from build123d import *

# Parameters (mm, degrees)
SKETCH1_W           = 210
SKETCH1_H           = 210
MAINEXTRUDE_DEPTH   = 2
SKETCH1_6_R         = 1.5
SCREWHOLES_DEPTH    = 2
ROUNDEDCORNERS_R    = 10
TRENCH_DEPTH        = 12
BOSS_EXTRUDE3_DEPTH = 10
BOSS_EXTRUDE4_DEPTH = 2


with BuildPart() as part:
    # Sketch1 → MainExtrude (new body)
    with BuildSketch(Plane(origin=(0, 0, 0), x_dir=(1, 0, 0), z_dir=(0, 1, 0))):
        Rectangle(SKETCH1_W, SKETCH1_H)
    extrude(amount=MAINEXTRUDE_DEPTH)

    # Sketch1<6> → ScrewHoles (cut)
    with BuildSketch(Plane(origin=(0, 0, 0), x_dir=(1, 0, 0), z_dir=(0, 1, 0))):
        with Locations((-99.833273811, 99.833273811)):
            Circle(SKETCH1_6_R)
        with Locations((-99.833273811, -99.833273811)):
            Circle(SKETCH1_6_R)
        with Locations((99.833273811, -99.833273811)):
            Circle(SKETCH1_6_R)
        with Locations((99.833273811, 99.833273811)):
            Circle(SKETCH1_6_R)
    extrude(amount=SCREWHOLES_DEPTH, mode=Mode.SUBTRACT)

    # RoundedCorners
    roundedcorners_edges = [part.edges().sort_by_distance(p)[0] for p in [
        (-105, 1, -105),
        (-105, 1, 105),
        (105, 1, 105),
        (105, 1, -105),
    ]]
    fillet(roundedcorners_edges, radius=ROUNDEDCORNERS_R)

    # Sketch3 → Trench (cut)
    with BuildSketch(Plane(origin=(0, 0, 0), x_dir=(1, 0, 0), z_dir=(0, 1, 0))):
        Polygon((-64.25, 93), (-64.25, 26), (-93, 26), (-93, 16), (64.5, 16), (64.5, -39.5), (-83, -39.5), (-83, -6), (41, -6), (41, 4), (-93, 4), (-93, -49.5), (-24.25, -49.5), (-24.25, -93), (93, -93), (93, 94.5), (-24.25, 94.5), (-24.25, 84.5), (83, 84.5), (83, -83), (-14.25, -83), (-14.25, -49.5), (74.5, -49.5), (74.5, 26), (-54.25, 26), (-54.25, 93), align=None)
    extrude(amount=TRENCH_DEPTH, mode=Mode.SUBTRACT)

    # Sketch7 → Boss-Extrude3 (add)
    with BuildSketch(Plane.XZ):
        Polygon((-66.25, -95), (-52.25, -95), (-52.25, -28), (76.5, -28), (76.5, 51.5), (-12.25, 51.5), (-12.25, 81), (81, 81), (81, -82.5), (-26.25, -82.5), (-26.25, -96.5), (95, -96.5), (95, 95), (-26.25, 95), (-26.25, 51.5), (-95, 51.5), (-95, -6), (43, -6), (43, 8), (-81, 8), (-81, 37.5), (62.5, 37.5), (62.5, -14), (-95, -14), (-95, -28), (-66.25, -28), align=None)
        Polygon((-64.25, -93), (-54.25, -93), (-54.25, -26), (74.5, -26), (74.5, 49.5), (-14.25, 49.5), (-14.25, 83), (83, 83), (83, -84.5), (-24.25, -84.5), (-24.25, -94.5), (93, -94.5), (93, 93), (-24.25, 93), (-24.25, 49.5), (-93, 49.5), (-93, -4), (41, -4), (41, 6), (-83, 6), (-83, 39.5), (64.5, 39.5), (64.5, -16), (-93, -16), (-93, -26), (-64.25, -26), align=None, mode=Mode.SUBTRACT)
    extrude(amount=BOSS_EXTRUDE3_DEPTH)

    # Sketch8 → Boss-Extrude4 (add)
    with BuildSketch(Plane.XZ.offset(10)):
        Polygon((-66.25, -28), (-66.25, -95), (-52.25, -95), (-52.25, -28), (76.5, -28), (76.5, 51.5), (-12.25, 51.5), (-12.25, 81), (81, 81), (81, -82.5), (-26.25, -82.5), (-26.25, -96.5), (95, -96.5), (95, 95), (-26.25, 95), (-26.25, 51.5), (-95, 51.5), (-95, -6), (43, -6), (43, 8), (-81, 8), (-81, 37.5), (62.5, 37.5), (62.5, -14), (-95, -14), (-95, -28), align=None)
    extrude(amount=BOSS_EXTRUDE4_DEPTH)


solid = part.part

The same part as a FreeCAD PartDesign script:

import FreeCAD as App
import Part
import Sketcher


def edges_at(feature, points):
    """Names of the edges that pass closest to the given points."""
    edges = feature.Shape.Edges
    near = lambda p: min(range(len(edges)), key=lambda i: edges[i].distToShape(Part.Vertex(*p))[0])
    return sorted({f"Edge{near(p) + 1}" for p in points})

doc = App.newDocument("Part")
params = doc.addObject("Spreadsheet::Sheet", "Params")
for row, (alias, value) in enumerate([
    ("sketch1_width", "210 mm"),
    ("pad1_length", "2 mm"),
    ("sketch2_diameter", "3 mm"),
    ("pocket1_length", "2 mm"),
    ("fillet_radius", "10 mm"),
    ("sketch3_width", "124 mm"),
    ("sketch3_width2", "134 mm"),
    ("sketch3_width3", "10 mm"),
    ("sketch3_height", "67 mm"),
    ("sketch3_width4", "157.5 mm"),
    ("pocket2_length", "12 mm"),
    ("sketch4_width", "14 mm"),
    ("sketch4_width2", "138 mm"),
    ("sketch4_width3", "124 mm"),
    ("sketch4_width4", "10 mm"),
    ("sketch4_width5", "134 mm"),
    ("pad2_length", "10 mm"),
    ("sketch5_width", "14 mm"),
    ("sketch5_width2", "138 mm"),
    ("sketch5_width3", "124 mm"),
    ("sketch5_height", "67 mm"),
    ("sketch5_width4", "143.5 mm"),
    ("pad3_length", "2 mm"),
], start=1):
    params.set(f"A{row}", alias)
    params.set(f"B{row}", "=" + value)
    params.setAlias(f"B{row}", alias)

body = doc.addObject("PartDesign::Body", "Body")

sketch1 = body.newObject("Sketcher::SketchObject", "Sketch")
sketch1.AttachmentSupport = (doc.getObject("XZ_Plane"), [""])
sketch1.MapMode = "FlatFace"
sketch1.addGeometry([
    Part.LineSegment(App.Vector(-105, -105, 0), App.Vector(-105, 105, 0)),
    Part.LineSegment(App.Vector(-105, 105, 0), App.Vector(105, 105, 0)),
    Part.LineSegment(App.Vector(105, 105, 0), App.Vector(105, -105, 0)),
    Part.LineSegment(App.Vector(105, -105, 0), App.Vector(-105, -105, 0)),
], False)
sketch1.addConstraint([
    Sketcher.Constraint("Coincident", 0, 2, 1, 1),
    Sketcher.Constraint("Coincident", 1, 2, 2, 1),
    Sketcher.Constraint("Coincident", 2, 2, 3, 1),
    Sketcher.Constraint("Coincident", 3, 2, 0, 1),
    Sketcher.Constraint("Vertical", 0),
    Sketcher.Constraint("Horizontal", 1),
    Sketcher.Constraint("Vertical", 2),
    Sketcher.Constraint("Horizontal", 3),
    Sketcher.Constraint("Symmetric", 0, 2, 2, 2, -1, 1),
    Sketcher.Constraint("Equal", 3, 0),
    Sketcher.Constraint("DistanceX", 1, 1, 1, 2, 210.0),
])
sketch1.setExpression("Constraints[10]", "Params.sketch1_width")
pad1 = body.newObject("PartDesign::Pad", "Pad")
pad1.Profile = sketch1
pad1.setExpression("Length", "Params.pad1_length")
pad1.Reversed = True

sketch2 = body.newObject("Sketcher::SketchObject", "Sketch001")
sketch2.AttachmentSupport = (doc.getObject("XZ_Plane"), [""])
sketch2.MapMode = "FlatFace"
sketch2.addGeometry([
    Part.Circle(App.Vector(-99.833274, -99.833274, 0), App.Vector(0, 0, 1), 1.5),
    Part.Circle(App.Vector(-99.833274, 99.833274, 0), App.Vector(0, 0, 1), 1.5),
    Part.Circle(App.Vector(99.833274, 99.833274, 0), App.Vector(0, 0, 1), 1.5),
    Part.Circle(App.Vector(99.833274, -99.833274, 0), App.Vector(0, 0, 1), 1.5),
], False)
sketch2.addConstraint([
    Sketcher.Constraint("Equal", 0, 1),
    Sketcher.Constraint("Equal", 1, 2),
    Sketcher.Constraint("Equal", 2, 3),
    Sketcher.Constraint("Symmetric", 0, 3, 2, 3, -1, 1),
    Sketcher.Constraint("Symmetric", 1, 3, 3, 3, -1, 1),
    Sketcher.Constraint("Symmetric", 1, 3, 2, 3, -2),
    Sketcher.Constraint("Diameter", 0, 3.0),
    Sketcher.Constraint("DistanceX", 0, 3, -1, 1, 99.833274),
    Sketcher.Constraint("DistanceY", 0, 3, -1, 1, 99.833274),
])
sketch2.setExpression("Constraints[6]", "Params.sketch2_diameter")
pocket1 = body.newObject("PartDesign::Pocket", "Pocket")
pocket1.Profile = sketch2
pocket1.setExpression("Length", "Params.pocket1_length")
doc.recompute()

fillet = body.newObject("PartDesign::Fillet", "Fillet")
fillet.Base = (pocket1, edges_at(pocket1, [
    (-105, 1, -105),
    (-105, 1, 105),
    (105, 1, 105),
    (105, 1, -105),
]))
fillet.setExpression("Radius", "Params.fillet_radius")

sketch3 = body.newObject("Sketcher::SketchObject", "Sketch002")
sketch3.AttachmentSupport = (doc.getObject("XZ_Plane"), [""])
sketch3.MapMode = "FlatFace"
sketch3.addGeometry([
    Part.LineSegment(App.Vector(-64.25, -93, 0), App.Vector(-64.25, -26, 0)),
    Part.LineSegment(App.Vector(-64.25, -26, 0), App.Vector(-93, -26, 0)),
    Part.LineSegment(App.Vector(-93, -26, 0), App.Vector(-93, -16, 0)),
    Part.LineSegment(App.Vector(-93, -16, 0), App.Vector(64.5, -16, 0)),
    Part.LineSegment(App.Vector(64.5, -16, 0), App.Vector(64.5, 39.5, 0)),
    Part.LineSegment(App.Vector(64.5, 39.5, 0), App.Vector(-83, 39.5, 0)),
    Part.LineSegment(App.Vector(-83, 39.5, 0), App.Vector(-83, 6, 0)),
    Part.LineSegment(App.Vector(-83, 6, 0), App.Vector(41, 6, 0)),
    Part.LineSegment(App.Vector(41, 6, 0), App.Vector(41, -4, 0)),
    Part.LineSegment(App.Vector(41, -4, 0), App.Vector(-93, -4, 0)),
    Part.LineSegment(App.Vector(-93, -4, 0), App.Vector(-93, 49.5, 0)),
    Part.LineSegment(App.Vector(-93, 49.5, 0), App.Vector(-24.25, 49.5, 0)),
    Part.LineSegment(App.Vector(-24.25, 49.5, 0), App.Vector(-24.25, 93, 0)),
    Part.LineSegment(App.Vector(-24.25, 93, 0), App.Vector(93, 93, 0)),
    Part.LineSegment(App.Vector(93, 93, 0), App.Vector(93, -94.5, 0)),
    Part.LineSegment(App.Vector(93, -94.5, 0), App.Vector(-24.25, -94.5, 0)),
    Part.LineSegment(App.Vector(-24.25, -94.5, 0), App.Vector(-24.25, -84.5, 0)),
    Part.LineSegment(App.Vector(-24.25, -84.5, 0), App.Vector(83, -84.5, 0)),
    Part.LineSegment(App.Vector(83, -84.5, 0), App.Vector(83, 83, 0)),
    Part.LineSegment(App.Vector(83, 83, 0), App.Vector(-14.25, 83, 0)),
    Part.LineSegment(App.Vector(-14.25, 83, 0), App.Vector(-14.25, 49.5, 0)),
    Part.LineSegment(App.Vector(-14.25, 49.5, 0), App.Vector(74.5, 49.5, 0)),
    Part.LineSegment(App.Vector(74.5, 49.5, 0), App.Vector(74.5, -26, 0)),
    Part.LineSegment(App.Vector(74.5, -26, 0), App.Vector(-54.25, -26, 0)),
    Part.LineSegment(App.Vector(-54.25, -26, 0), App.Vector(-54.25, -93, 0)),
    Part.LineSegment(App.Vector(-54.25, -93, 0), App.Vector(-64.25, -93, 0)),
], False)
sketch3.addConstraint([
    Sketcher.Constraint("Coincident", 0, 2, 1, 1),
    Sketcher.Constraint("Coincident", 1, 2, 2, 1),
    Sketcher.Constraint("Coincident", 2, 2, 3, 1),
    Sketcher.Constraint("Coincident", 3, 2, 4, 1),
    Sketcher.Constraint("Coincident", 4, 2, 5, 1),
    Sketcher.Constraint("Coincident", 5, 2, 6, 1),
    Sketcher.Constraint("Coincident", 6, 2, 7, 1),
    Sketcher.Constraint("Coincident", 7, 2, 8, 1),
    Sketcher.Constraint("Coincident", 8, 2, 9, 1),
    Sketcher.Constraint("Coincident", 9, 2, 10, 1),
    Sketcher.Constraint("Coincident", 10, 2, 11, 1),
    Sketcher.Constraint("Coincident", 11, 2, 12, 1),
    Sketcher.Constraint("Coincident", 12, 2, 13, 1),
    Sketcher.Constraint("Coincident", 13, 2, 14, 1),
    Sketcher.Constraint("Coincident", 14, 2, 15, 1),
    Sketcher.Constraint("Coincident", 15, 2, 16, 1),
    Sketcher.Constraint("Coincident", 16, 2, 17, 1),
    Sketcher.Constraint("Coincident", 17, 2, 18, 1),
    Sketcher.Constraint("Coincident", 18, 2, 19, 1),
    Sketcher.Constraint("Coincident", 19, 2, 20, 1),
    Sketcher.Constraint("Coincident", 20, 2, 21, 1),
    Sketcher.Constraint("Coincident", 21, 2, 22, 1),
    Sketcher.Constraint("Coincident", 22, 2, 23, 1),
    Sketcher.Constraint("Coincident", 23, 2, 24, 1),
    Sketcher.Constraint("Coincident", 24, 2, 25, 1),
    Sketcher.Constraint("Coincident", 25, 2, 0, 1),
    Sketcher.Constraint("Vertical", 0),
    Sketcher.Constraint("Horizontal", 1),
    Sketcher.Constraint("Vertical", 2),
    Sketcher.Constraint("Horizontal", 3),
    Sketcher.Constraint("Vertical", 4),
    Sketcher.Constraint("Horizontal", 5),
    Sketcher.Constraint("Vertical", 6),
    Sketcher.Constraint("Horizontal", 7),
    Sketcher.Constraint("Vertical", 8),
    Sketcher.Constraint("Horizontal", 9),
    Sketcher.Constraint("Vertical", 10),
    Sketcher.Constraint("Horizontal", 11),
    Sketcher.Constraint("Vertical", 12),
    Sketcher.Constraint("Horizontal", 13),
    Sketcher.Constraint("Vertical", 14),
    Sketcher.Constraint("Horizontal", 15),
    Sketcher.Constraint("Vertical", 16),
    Sketcher.Constraint("Horizontal", 17),
    Sketcher.Constraint("Vertical", 18),
    Sketcher.Constraint("Horizontal", 19),
    Sketcher.Constraint("Vertical", 20),
    Sketcher.Constraint("Horizontal", 21),
    Sketcher.Constraint("Vertical", 22),
    Sketcher.Constraint("Horizontal", 23),
    Sketcher.Constraint("Vertical", 24),
    Sketcher.Constraint("Horizontal", 25),
    Sketcher.Constraint("Horizontal", 11, 2, 20, 2),
    Sketcher.Constraint("Horizontal", 1, 2, 22, 2),
    Sketcher.Constraint("Vertical", 2, 2, 9, 2),
    Sketcher.Constraint("Vertical", 12, 2, 15, 2),
    Sketcher.Constraint("Equal", 25, 2),
    Sketcher.Constraint("Equal", 2, 8),
    Sketcher.Constraint("Equal", 8, 16),
    Sketcher.Constraint("Equal", 6, 20),
    Sketcher.Constraint("DistanceX", 7, 1, 7, 2, 124.0),
    Sketcher.Constraint("DistanceX", 9, 2, 9, 1, 134.0),
    Sketcher.Constraint("DistanceX", 25, 2, 25, 1, 10.0),
    Sketcher.Constraint("DistanceY", 0, 1, 0, 2, 67.0),
    Sketcher.Constraint("DistanceX", 3, 1, 3, 2, 157.5),
    Sketcher.Constraint("DistanceY", 4, 1, 4, 2, 55.5),
    Sketcher.Constraint("DistanceY", 6, 2, 6, 1, 33.5),
    Sketcher.Constraint("DistanceY", 10, 1, 10, 2, 53.5),
    Sketcher.Constraint("DistanceY", 12, 1, 12, 2, 43.5),
    Sketcher.Constraint("DistanceY", 14, 2, 14, 1, 187.5),
    Sketcher.Constraint("DistanceY", 0, 2, -1, 1, 26.0),
    Sketcher.Constraint("DistanceX", 1, 2, -1, 1, 93.0),
    Sketcher.Constraint("DistanceX", -1, 1, 13, 2, 93.0),
    Sketcher.Constraint("DistanceX", -1, 1, 17, 2, 83.0),
    Sketcher.Constraint("DistanceX", 0, 2, 15, 2, 40.0),
    Sketcher.Constraint("DistanceX", 12, 2, 19, 2, 10.0),
    Sketcher.Constraint("DistanceX", 4, 2, 21, 2, 10.0),
    Sketcher.Constraint("DistanceX", 1, 2, 1, 1, 28.75),
])
sketch3.setExpression("Constraints[60]", "Params.sketch3_width")
sketch3.setExpression("Constraints[61]", "Params.sketch3_width2")
sketch3.setExpression("Constraints[62]", "Params.sketch3_width3")
sketch3.setExpression("Constraints[63]", "Params.sketch3_height")
sketch3.setExpression("Constraints[64]", "Params.sketch3_width4")
pocket2 = body.newObject("PartDesign::Pocket", "Pocket001")
pocket2.Profile = sketch3
pocket2.setExpression("Length", "Params.pocket2_length")

sketch4 = body.newObject("Sketcher::SketchObject", "Sketch003")
sketch4.AttachmentSupport = (doc.getObject("XZ_Plane"), [""])
sketch4.MapMode = "FlatFace"
sketch4.addGeometry([
    Part.LineSegment(App.Vector(-66.25, -95, 0), App.Vector(-52.25, -95, 0)),
    Part.LineSegment(App.Vector(-52.25, -95, 0), App.Vector(-52.25, -28, 0)),
    Part.LineSegment(App.Vector(-52.25, -28, 0), App.Vector(76.5, -28, 0)),
    Part.LineSegment(App.Vector(76.5, -28, 0), App.Vector(76.5, 51.5, 0)),
    Part.LineSegment(App.Vector(76.5, 51.5, 0), App.Vector(-12.25, 51.5, 0)),
    Part.LineSegment(App.Vector(-12.25, 51.5, 0), App.Vector(-12.25, 81, 0)),
    Part.LineSegment(App.Vector(-12.25, 81, 0), App.Vector(81, 81, 0)),
    Part.LineSegment(App.Vector(81, 81, 0), App.Vector(81, -82.5, 0)),
    Part.LineSegment(App.Vector(81, -82.5, 0), App.Vector(-26.25, -82.5, 0)),
    Part.LineSegment(App.Vector(-26.25, -82.5, 0), App.Vector(-26.25, -96.5, 0)),
    Part.LineSegment(App.Vector(-26.25, -96.5, 0), App.Vector(95, -96.5, 0)),
    Part.LineSegment(App.Vector(95, -96.5, 0), App.Vector(95, 95, 0)),
    Part.LineSegment(App.Vector(95, 95, 0), App.Vector(-26.25, 95, 0)),
    Part.LineSegment(App.Vector(-26.25, 95, 0), App.Vector(-26.25, 51.5, 0)),
    Part.LineSegment(App.Vector(-26.25, 51.5, 0), App.Vector(-95, 51.5, 0)),
    Part.LineSegment(App.Vector(-95, 51.5, 0), App.Vector(-95, -6, 0)),
    Part.LineSegment(App.Vector(-95, -6, 0), App.Vector(43, -6, 0)),
    Part.LineSegment(App.Vector(43, -6, 0), App.Vector(43, 8, 0)),
    Part.LineSegment(App.Vector(43, 8, 0), App.Vector(-81, 8, 0)),
    Part.LineSegment(App.Vector(-81, 8, 0), App.Vector(-81, 37.5, 0)),
    Part.LineSegment(App.Vector(-81, 37.5, 0), App.Vector(62.5, 37.5, 0)),
    Part.LineSegment(App.Vector(62.5, 37.5, 0), App.Vector(62.5, -14, 0)),
    Part.LineSegment(App.Vector(62.5, -14, 0), App.Vector(-95, -14, 0)),
    Part.LineSegment(App.Vector(-95, -14, 0), App.Vector(-95, -28, 0)),
    Part.LineSegment(App.Vector(-95, -28, 0), App.Vector(-66.25, -28, 0)),
    Part.LineSegment(App.Vector(-66.25, -28, 0), App.Vector(-66.25, -95, 0)),
    Part.LineSegment(App.Vector(-54.25, -93, 0), App.Vector(-64.25, -93, 0)),
    Part.LineSegment(App.Vector(-64.25, -93, 0), App.Vector(-64.25, -26, 0)),
    Part.LineSegment(App.Vector(-64.25, -26, 0), App.Vector(-93, -26, 0)),
    Part.LineSegment(App.Vector(-93, -26, 0), App.Vector(-93, -16, 0)),
    Part.LineSegment(App.Vector(-93, -16, 0), App.Vector(64.5, -16, 0)),
    Part.LineSegment(App.Vector(64.5, -16, 0), App.Vector(64.5, 39.5, 0)),
    Part.LineSegment(App.Vector(64.5, 39.5, 0), App.Vector(-83, 39.5, 0)),
    Part.LineSegment(App.Vector(-83, 39.5, 0), App.Vector(-83, 6, 0)),
    Part.LineSegment(App.Vector(-83, 6, 0), App.Vector(41, 6, 0)),
    Part.LineSegment(App.Vector(41, 6, 0), App.Vector(41, -4, 0)),
    Part.LineSegment(App.Vector(41, -4, 0), App.Vector(-93, -4, 0)),
    Part.LineSegment(App.Vector(-93, -4, 0), App.Vector(-93, 49.5, 0)),
    Part.LineSegment(App.Vector(-93, 49.5, 0), App.Vector(-24.25, 49.5, 0)),
    Part.LineSegment(App.Vector(-24.25, 49.5, 0), App.Vector(-24.25, 93, 0)),
    Part.LineSegment(App.Vector(-24.25, 93, 0), App.Vector(93, 93, 0)),
    Part.LineSegment(App.Vector(93, 93, 0), App.Vector(93, -94.5, 0)),
    Part.LineSegment(App.Vector(93, -94.5, 0), App.Vector(-24.25, -94.5, 0)),
    Part.LineSegment(App.Vector(-24.25, -94.5, 0), App.Vector(-24.25, -84.5, 0)),
    Part.LineSegment(App.Vector(-24.25, -84.5, 0), App.Vector(83, -84.5, 0)),
    Part.LineSegment(App.Vector(83, -84.5, 0), App.Vector(83, 83, 0)),
    Part.LineSegment(App.Vector(83, 83, 0), App.Vector(-14.25, 83, 0)),
    Part.LineSegment(App.Vector(-14.25, 83, 0), App.Vector(-14.25, 49.5, 0)),
    Part.LineSegment(App.Vector(-14.25, 49.5, 0), App.Vector(74.5, 49.5, 0)),
    Part.LineSegment(App.Vector(74.5, 49.5, 0), App.Vector(74.5, -26, 0)),
    Part.LineSegment(App.Vector(74.5, -26, 0), App.Vector(-54.25, -26, 0)),
    Part.LineSegment(App.Vector(-54.25, -26, 0), App.Vector(-54.25, -93, 0)),
], False)
sketch4.addConstraint([
    Sketcher.Constraint("Coincident", 0, 2, 1, 1),
    Sketcher.Constraint("Coincident", 1, 2, 2, 1),
    Sketcher.Constraint("Coincident", 2, 2, 3, 1),
    Sketcher.Constraint("Coincident", 3, 2, 4, 1),
    Sketcher.Constraint("Coincident", 4, 2, 5, 1),
    Sketcher.Constraint("Coincident", 5, 2, 6, 1),
    Sketcher.Constraint("Coincident", 6, 2, 7, 1),
    Sketcher.Constraint("Coincident", 7, 2, 8, 1),
    Sketcher.Constraint("Coincident", 8, 2, 9, 1),
    Sketcher.Constraint("Coincident", 9, 2, 10, 1),
    Sketcher.Constraint("Coincident", 10, 2, 11, 1),
    Sketcher.Constraint("Coincident", 11, 2, 12, 1),
    Sketcher.Constraint("Coincident", 12, 2, 13, 1),
    Sketcher.Constraint("Coincident", 13, 2, 14, 1),
    Sketcher.Constraint("Coincident", 14, 2, 15, 1),
    Sketcher.Constraint("Coincident", 15, 2, 16, 1),
    Sketcher.Constraint("Coincident", 16, 2, 17, 1),
    Sketcher.Constraint("Coincident", 17, 2, 18, 1),
    Sketcher.Constraint("Coincident", 18, 2, 19, 1),
    Sketcher.Constraint("Coincident", 19, 2, 20, 1),
    Sketcher.Constraint("Coincident", 20, 2, 21, 1),
    Sketcher.Constraint("Coincident", 21, 2, 22, 1),
    Sketcher.Constraint("Coincident", 22, 2, 23, 1),
    Sketcher.Constraint("Coincident", 23, 2, 24, 1),
    Sketcher.Constraint("Coincident", 24, 2, 25, 1),
    Sketcher.Constraint("Coincident", 25, 2, 0, 1),
    Sketcher.Constraint("Coincident", 26, 2, 27, 1),
    Sketcher.Constraint("Coincident", 27, 2, 28, 1),
    Sketcher.Constraint("Coincident", 28, 2, 29, 1),
    Sketcher.Constraint("Coincident", 29, 2, 30, 1),
    Sketcher.Constraint("Coincident", 30, 2, 31, 1),
    Sketcher.Constraint("Coincident", 31, 2, 32, 1),
    Sketcher.Constraint("Coincident", 32, 2, 33, 1),
    Sketcher.Constraint("Coincident", 33, 2, 34, 1),
    Sketcher.Constraint("Coincident", 34, 2, 35, 1),
    Sketcher.Constraint("Coincident", 35, 2, 36, 1),
    Sketcher.Constraint("Coincident", 36, 2, 37, 1),
    Sketcher.Constraint("Coincident", 37, 2, 38, 1),
    Sketcher.Constraint("Coincident", 38, 2, 39, 1),
    Sketcher.Constraint("Coincident", 39, 2, 40, 1),
    Sketcher.Constraint("Coincident", 40, 2, 41, 1),
    Sketcher.Constraint("Coincident", 41, 2, 42, 1),
    Sketcher.Constraint("Coincident", 42, 2, 43, 1),
    Sketcher.Constraint("Coincident", 43, 2, 44, 1),
    Sketcher.Constraint("Coincident", 44, 2, 45, 1),
    Sketcher.Constraint("Coincident", 45, 2, 46, 1),
    Sketcher.Constraint("Coincident", 46, 2, 47, 1),
    Sketcher.Constraint("Coincident", 47, 2, 48, 1),
    Sketcher.Constraint("Coincident", 48, 2, 49, 1),
    Sketcher.Constraint("Coincident", 49, 2, 50, 1),
    Sketcher.Constraint("Coincident", 50, 2, 51, 1),
    Sketcher.Constraint("Coincident", 51, 2, 26, 1),
    Sketcher.Constraint("Horizontal", 0),
    Sketcher.Constraint("Vertical", 1),
    Sketcher.Constraint("Horizontal", 2),
    Sketcher.Constraint("Vertical", 3),
    Sketcher.Constraint("Horizontal", 4),
    Sketcher.Constraint("Vertical", 5),
    Sketcher.Constraint("Horizontal", 6),
    Sketcher.Constraint("Vertical", 7),
    Sketcher.Constraint("Horizontal", 8),
    Sketcher.Constraint("Vertical", 9),
    Sketcher.Constraint("Horizontal", 10),
    Sketcher.Constraint("Vertical", 11),
    Sketcher.Constraint("Horizontal", 12),
    Sketcher.Constraint("Vertical", 13),
    Sketcher.Constraint("Horizontal", 14),
    Sketcher.Constraint("Vertical", 15),
    Sketcher.Constraint("Horizontal", 16),
    Sketcher.Constraint("Vertical", 17),
    Sketcher.Constraint("Horizontal", 18),
    Sketcher.Constraint("Vertical", 19),
    Sketcher.Constraint("Horizontal", 20),
    Sketcher.Constraint("Vertical", 21),
    Sketcher.Constraint("Horizontal", 22),
    Sketcher.Constraint("Vertical", 23),
    Sketcher.Constraint("Horizontal", 24),
    Sketcher.Constraint("Vertical", 25),
    Sketcher.Constraint("Horizontal", 26),
    Sketcher.Constraint("Vertical", 27),
    Sketcher.Constraint("Horizontal", 28),
    Sketcher.Constraint("Vertical", 29),
    Sketcher.Constraint("Horizontal", 30),
    Sketcher.Constraint("Vertical", 31),
    Sketcher.Constraint("Horizontal", 32),
    Sketcher.Constraint("Vertical", 33),
    Sketcher.Constraint("Horizontal", 34),
    Sketcher.Constraint("Vertical", 35),
    Sketcher.Constraint("Horizontal", 36),
    Sketcher.Constraint("Vertical", 37),
    Sketcher.Constraint("Horizontal", 38),
    Sketcher.Constraint("Vertical", 39),
    Sketcher.Constraint("Horizontal", 40),
    Sketcher.Constraint("Vertical", 41),
    Sketcher.Constraint("Horizontal", 42),
    Sketcher.Constraint("Vertical", 43),
    Sketcher.Constraint("Horizontal", 44),
    Sketcher.Constraint("Vertical", 45),
    Sketcher.Constraint("Horizontal", 46),
    Sketcher.Constraint("Vertical", 47),
    Sketcher.Constraint("Horizontal", 48),
    Sketcher.Constraint("Vertical", 49),
    Sketcher.Constraint("Horizontal", 50),
    Sketcher.Constraint("Vertical", 51),
    Sketcher.Constraint("Horizontal", 4, 2, 13, 2),
    Sketcher.Constraint("Horizontal", 2, 2, 23, 2),
    Sketcher.Constraint("Horizontal", 38, 2, 47, 2),
    Sketcher.Constraint("Horizontal", 28, 2, 49, 2),
    Sketcher.Constraint("Vertical", 9, 2, 12, 2),
    Sketcher.Constraint("Vertical", 15, 2, 22, 2),
    Sketcher.Constraint("Vertical", 29, 2, 36, 2),
    Sketcher.Constraint("Vertical", 39, 2, 42, 2),
    Sketcher.Constraint("Equal", 24, 28),
    Sketcher.Constraint("Equal", 22, 30),
    Sketcher.Constraint("Equal", 18, 34),
    Sketcher.Constraint("Equal", 14, 38),
    Sketcher.Constraint("Equal", 8, 44),
    Sketcher.Constraint("Equal", 4, 48),
    Sketcher.Constraint("Equal", 2, 50),
    Sketcher.Constraint("Equal", 0, 9),
    Sketcher.Constraint("Equal", 9, 17),
    Sketcher.Constraint("Equal", 5, 19),
    Sketcher.Constraint("Equal", 17, 23),
    Sketcher.Constraint("Equal", 25, 27),
    Sketcher.Constraint("Equal", 26, 29),
    Sketcher.Constraint("Equal", 29, 35),
    Sketcher.Constraint("Equal", 13, 39),
    Sketcher.Constraint("Equal", 35, 43),
    Sketcher.Constraint("Equal", 33, 47),
    Sketcher.Constraint("DistanceX", 0, 1, 0, 2, 14.0),
    Sketcher.Constraint("DistanceX", 16, 1, 16, 2, 138.0),
    Sketcher.Constraint("DistanceX", 18, 2, 18, 1, 124.0),
    Sketcher.Constraint("DistanceX", 26, 2, 26, 1, 10.0),
    Sketcher.Constraint("DistanceX", 36, 2, 36, 1, 134.0),
    Sketcher.Constraint("DistanceY", 1, 1, 1, 2, 67.0),
    Sketcher.Constraint("DistanceX", 20, 1, 20, 2, 143.5),
    Sketcher.Constraint("DistanceY", 3, 1, 3, 2, 79.5),
    Sketcher.Constraint("DistanceY", 5, 1, 5, 2, 29.5),
    Sketcher.Constraint("DistanceY", 7, 2, 7, 1, 163.5),
    Sketcher.Constraint("DistanceY", 11, 1, 11, 2, 191.5),
    Sketcher.Constraint("DistanceY", 15, 2, 15, 1, 57.5),
    Sketcher.Constraint("DistanceY", 31, 1, 31, 2, 55.5),
    Sketcher.Constraint("DistanceY", 33, 2, 33, 1, 33.5),
    Sketcher.Constraint("DistanceY", 37, 1, 37, 2, 53.5),
    Sketcher.Constraint("DistanceY", 41, 2, 41, 1, 187.5),
    Sketcher.Constraint("DistanceY", 0, 2, -1, 1, 95.0),
    Sketcher.Constraint("DistanceX", -1, 1, 6, 2, 81.0),
    Sketcher.Constraint("DistanceX", -1, 1, 10, 2, 95.0),
    Sketcher.Constraint("DistanceX", 14, 2, -1, 1, 95.0),
    Sketcher.Constraint("DistanceY", 26, 2, -1, 1, 93.0),
    Sketcher.Constraint("DistanceX", 28, 2, -1, 1, 93.0),
    Sketcher.Constraint("DistanceX", -1, 1, 40, 2, 93.0),
    Sketcher.Constraint("DistanceX", 1, 2, 4, 2, 40.0),
    Sketcher.Constraint("DistanceX", 0, 2, 8, 2, 26.0),
    Sketcher.Constraint("DistanceX", 20, 2, 3, 2, 14.0),
    Sketcher.Constraint("DistanceX", 2, 1, 2, 2, 128.75),
])
sketch4.setExpression("Constraints[129]", "Params.sketch4_width")
sketch4.setExpression("Constraints[130]", "Params.sketch4_width2")
sketch4.setExpression("Constraints[131]", "Params.sketch4_width3")
sketch4.setExpression("Constraints[132]", "Params.sketch4_width4")
sketch4.setExpression("Constraints[133]", "Params.sketch4_width5")
pad2 = body.newObject("PartDesign::Pad", "Pad001")
pad2.Profile = sketch4
pad2.setExpression("Length", "Params.pad2_length")

sketch5 = body.newObject("Sketcher::SketchObject", "Sketch004")
sketch5.AttachmentSupport = (doc.getObject("XZ_Plane"), [""])
sketch5.MapMode = "FlatFace"
sketch5.AttachmentOffset = App.Placement(App.Vector(0, 0, 10), App.Rotation())
sketch5.addGeometry([
    Part.LineSegment(App.Vector(-66.25, -28, 0), App.Vector(-66.25, -95, 0)),
    Part.LineSegment(App.Vector(-66.25, -95, 0), App.Vector(-52.25, -95, 0)),
    Part.LineSegment(App.Vector(-52.25, -95, 0), App.Vector(-52.25, -28, 0)),
    Part.LineSegment(App.Vector(-52.25, -28, 0), App.Vector(76.5, -28, 0)),
    Part.LineSegment(App.Vector(76.5, -28, 0), App.Vector(76.5, 51.5, 0)),
    Part.LineSegment(App.Vector(76.5, 51.5, 0), App.Vector(-12.25, 51.5, 0)),
    Part.LineSegment(App.Vector(-12.25, 51.5, 0), App.Vector(-12.25, 81, 0)),
    Part.LineSegment(App.Vector(-12.25, 81, 0), App.Vector(81, 81, 0)),
    Part.LineSegment(App.Vector(81, 81, 0), App.Vector(81, -82.5, 0)),
    Part.LineSegment(App.Vector(81, -82.5, 0), App.Vector(-26.25, -82.5, 0)),
    Part.LineSegment(App.Vector(-26.25, -82.5, 0), App.Vector(-26.25, -96.5, 0)),
    Part.LineSegment(App.Vector(-26.25, -96.5, 0), App.Vector(95, -96.5, 0)),
    Part.LineSegment(App.Vector(95, -96.5, 0), App.Vector(95, 95, 0)),
    Part.LineSegment(App.Vector(95, 95, 0), App.Vector(-26.25, 95, 0)),
    Part.LineSegment(App.Vector(-26.25, 95, 0), App.Vector(-26.25, 51.5, 0)),
    Part.LineSegment(App.Vector(-26.25, 51.5, 0), App.Vector(-95, 51.5, 0)),
    Part.LineSegment(App.Vector(-95, 51.5, 0), App.Vector(-95, -6, 0)),
    Part.LineSegment(App.Vector(-95, -6, 0), App.Vector(43, -6, 0)),
    Part.LineSegment(App.Vector(43, -6, 0), App.Vector(43, 8, 0)),
    Part.LineSegment(App.Vector(43, 8, 0), App.Vector(-81, 8, 0)),
    Part.LineSegment(App.Vector(-81, 8, 0), App.Vector(-81, 37.5, 0)),
    Part.LineSegment(App.Vector(-81, 37.5, 0), App.Vector(62.5, 37.5, 0)),
    Part.LineSegment(App.Vector(62.5, 37.5, 0), App.Vector(62.5, -14, 0)),
    Part.LineSegment(App.Vector(62.5, -14, 0), App.Vector(-95, -14, 0)),
    Part.LineSegment(App.Vector(-95, -14, 0), App.Vector(-95, -28, 0)),
    Part.LineSegment(App.Vector(-95, -28, 0), App.Vector(-66.25, -28, 0)),
], False)
sketch5.addConstraint([
    Sketcher.Constraint("Coincident", 0, 2, 1, 1),
    Sketcher.Constraint("Coincident", 1, 2, 2, 1),
    Sketcher.Constraint("Coincident", 2, 2, 3, 1),
    Sketcher.Constraint("Coincident", 3, 2, 4, 1),
    Sketcher.Constraint("Coincident", 4, 2, 5, 1),
    Sketcher.Constraint("Coincident", 5, 2, 6, 1),
    Sketcher.Constraint("Coincident", 6, 2, 7, 1),
    Sketcher.Constraint("Coincident", 7, 2, 8, 1),
    Sketcher.Constraint("Coincident", 8, 2, 9, 1),
    Sketcher.Constraint("Coincident", 9, 2, 10, 1),
    Sketcher.Constraint("Coincident", 10, 2, 11, 1),
    Sketcher.Constraint("Coincident", 11, 2, 12, 1),
    Sketcher.Constraint("Coincident", 12, 2, 13, 1),
    Sketcher.Constraint("Coincident", 13, 2, 14, 1),
    Sketcher.Constraint("Coincident", 14, 2, 15, 1),
    Sketcher.Constraint("Coincident", 15, 2, 16, 1),
    Sketcher.Constraint("Coincident", 16, 2, 17, 1),
    Sketcher.Constraint("Coincident", 17, 2, 18, 1),
    Sketcher.Constraint("Coincident", 18, 2, 19, 1),
    Sketcher.Constraint("Coincident", 19, 2, 20, 1),
    Sketcher.Constraint("Coincident", 20, 2, 21, 1),
    Sketcher.Constraint("Coincident", 21, 2, 22, 1),
    Sketcher.Constraint("Coincident", 22, 2, 23, 1),
    Sketcher.Constraint("Coincident", 23, 2, 24, 1),
    Sketcher.Constraint("Coincident", 24, 2, 25, 1),
    Sketcher.Constraint("Coincident", 25, 2, 0, 1),
    Sketcher.Constraint("Vertical", 0),
    Sketcher.Constraint("Horizontal", 1),
    Sketcher.Constraint("Vertical", 2),
    Sketcher.Constraint("Horizontal", 3),
    Sketcher.Constraint("Vertical", 4),
    Sketcher.Constraint("Horizontal", 5),
    Sketcher.Constraint("Vertical", 6),
    Sketcher.Constraint("Horizontal", 7),
    Sketcher.Constraint("Vertical", 8),
    Sketcher.Constraint("Horizontal", 9),
    Sketcher.Constraint("Vertical", 10),
    Sketcher.Constraint("Horizontal", 11),
    Sketcher.Constraint("Vertical", 12),
    Sketcher.Constraint("Horizontal", 13),
    Sketcher.Constraint("Vertical", 14),
    Sketcher.Constraint("Horizontal", 15),
    Sketcher.Constraint("Vertical", 16),
    Sketcher.Constraint("Horizontal", 17),
    Sketcher.Constraint("Vertical", 18),
    Sketcher.Constraint("Horizontal", 19),
    Sketcher.Constraint("Vertical", 20),
    Sketcher.Constraint("Horizontal", 21),
    Sketcher.Constraint("Vertical", 22),
    Sketcher.Constraint("Horizontal", 23),
    Sketcher.Constraint("Vertical", 24),
    Sketcher.Constraint("Horizontal", 25),
    Sketcher.Constraint("Horizontal", 5, 2, 14, 2),
    Sketcher.Constraint("Horizontal", 3, 2, 24, 2),
    Sketcher.Constraint("Vertical", 10, 2, 13, 2),
    Sketcher.Constraint("Vertical", 16, 2, 23, 2),
    Sketcher.Constraint("Equal", 1, 10),
    Sketcher.Constraint("Equal", 10, 18),
    Sketcher.Constraint("Equal", 6, 20),
    Sketcher.Constraint("Equal", 18, 24),
    Sketcher.Constraint("DistanceX", 1, 1, 1, 2, 14.0),
    Sketcher.Constraint("DistanceX", 17, 1, 17, 2, 138.0),
    Sketcher.Constraint("DistanceX", 19, 2, 19, 1, 124.0),
    Sketcher.Constraint("DistanceY", 0, 2, 0, 1, 67.0),
    Sketcher.Constraint("DistanceX", 21, 1, 21, 2, 143.5),
    Sketcher.Constraint("DistanceY", 4, 1, 4, 2, 79.5),
    Sketcher.Constraint("DistanceY", 6, 1, 6, 2, 29.5),
    Sketcher.Constraint("DistanceY", 8, 2, 8, 1, 163.5),
    Sketcher.Constraint("DistanceY", 12, 1, 12, 2, 191.5),
    Sketcher.Constraint("DistanceY", 16, 2, 16, 1, 57.5),
    Sketcher.Constraint("DistanceY", 0, 2, -1, 1, 95.0),
    Sketcher.Constraint("DistanceX", -1, 1, 7, 2, 81.0),
    Sketcher.Constraint("DistanceX", -1, 1, 11, 2, 95.0),
    Sketcher.Constraint("DistanceX", 15, 2, -1, 1, 95.0),
    Sketcher.Constraint("DistanceX", 2, 2, 5, 2, 40.0),
    Sketcher.Constraint("DistanceX", 1, 2, 9, 2, 26.0),
    Sketcher.Constraint("DistanceX", 21, 2, 4, 2, 14.0),
    Sketcher.Constraint("DistanceX", 3, 1, 3, 2, 128.75),
])
sketch5.setExpression("Constraints[60]", "Params.sketch5_width")
sketch5.setExpression("Constraints[61]", "Params.sketch5_width2")
sketch5.setExpression("Constraints[62]", "Params.sketch5_width3")
sketch5.setExpression("Constraints[63]", "Params.sketch5_height")
sketch5.setExpression("Constraints[64]", "Params.sketch5_width4")
pad3 = body.newObject("PartDesign::Pad", "Pad002")
pad3.Profile = sketch5
pad3.setExpression("Length", "Params.pad3_length")

doc.recompute()
